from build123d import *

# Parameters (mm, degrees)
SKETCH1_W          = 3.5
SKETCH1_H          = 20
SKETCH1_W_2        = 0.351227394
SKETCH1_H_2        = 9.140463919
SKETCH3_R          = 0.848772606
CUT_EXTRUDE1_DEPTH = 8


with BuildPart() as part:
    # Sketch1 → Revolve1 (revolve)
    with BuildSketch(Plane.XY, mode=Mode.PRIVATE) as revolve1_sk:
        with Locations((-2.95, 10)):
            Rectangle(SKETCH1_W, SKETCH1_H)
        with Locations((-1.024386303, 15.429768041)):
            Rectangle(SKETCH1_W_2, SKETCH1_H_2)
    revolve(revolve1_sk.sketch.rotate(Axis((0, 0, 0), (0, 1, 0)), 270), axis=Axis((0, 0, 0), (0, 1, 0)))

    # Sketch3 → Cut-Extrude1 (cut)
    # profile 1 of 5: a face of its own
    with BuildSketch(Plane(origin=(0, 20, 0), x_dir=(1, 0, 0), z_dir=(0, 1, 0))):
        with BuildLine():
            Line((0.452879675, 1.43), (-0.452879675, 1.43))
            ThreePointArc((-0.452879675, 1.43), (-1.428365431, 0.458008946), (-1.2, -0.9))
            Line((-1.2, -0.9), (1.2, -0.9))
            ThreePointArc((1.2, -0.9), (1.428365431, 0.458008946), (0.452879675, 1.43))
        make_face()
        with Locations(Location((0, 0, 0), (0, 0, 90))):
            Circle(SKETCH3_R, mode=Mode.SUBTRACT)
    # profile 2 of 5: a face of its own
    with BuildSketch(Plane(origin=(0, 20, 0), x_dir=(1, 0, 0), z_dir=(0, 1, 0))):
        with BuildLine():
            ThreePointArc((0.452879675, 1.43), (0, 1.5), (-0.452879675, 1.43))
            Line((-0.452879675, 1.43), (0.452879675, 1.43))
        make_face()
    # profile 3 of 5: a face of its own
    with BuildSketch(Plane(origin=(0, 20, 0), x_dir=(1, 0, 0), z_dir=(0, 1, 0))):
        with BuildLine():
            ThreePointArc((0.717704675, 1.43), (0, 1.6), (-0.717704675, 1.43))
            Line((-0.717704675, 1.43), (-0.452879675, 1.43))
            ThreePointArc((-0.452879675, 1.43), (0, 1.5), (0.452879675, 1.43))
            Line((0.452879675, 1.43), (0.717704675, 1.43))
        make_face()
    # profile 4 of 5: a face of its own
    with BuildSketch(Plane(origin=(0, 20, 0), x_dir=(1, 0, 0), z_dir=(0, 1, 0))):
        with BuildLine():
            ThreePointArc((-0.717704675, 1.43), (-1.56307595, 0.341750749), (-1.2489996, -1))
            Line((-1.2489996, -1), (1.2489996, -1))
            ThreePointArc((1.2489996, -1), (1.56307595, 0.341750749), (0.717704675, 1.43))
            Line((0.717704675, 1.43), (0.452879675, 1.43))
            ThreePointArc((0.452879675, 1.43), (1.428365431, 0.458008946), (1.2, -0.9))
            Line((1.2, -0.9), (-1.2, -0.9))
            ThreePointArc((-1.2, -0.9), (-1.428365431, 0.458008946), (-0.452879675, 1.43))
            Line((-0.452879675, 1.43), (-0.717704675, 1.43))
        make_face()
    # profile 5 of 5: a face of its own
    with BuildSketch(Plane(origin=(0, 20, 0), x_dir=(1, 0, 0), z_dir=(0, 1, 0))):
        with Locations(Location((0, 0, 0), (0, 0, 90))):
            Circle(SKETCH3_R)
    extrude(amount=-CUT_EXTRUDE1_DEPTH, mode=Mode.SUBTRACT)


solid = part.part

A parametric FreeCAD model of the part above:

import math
import FreeCAD as App
import Part
import Sketcher

doc = App.newDocument("Part")
body = doc.addObject("PartDesign::Body", "Body")

# Sketch on XY plane
sketch1 = body.newObject("Sketcher::SketchObject", "Sketch")
sketch1.AttachmentSupport = (doc.getObject("XY_Plane"), [""])
sketch1.MapMode = "FlatFace"
sketch1.addGeometry(Part.LineSegment(App.Vector(-4.7, 20, 0), App.Vector(-4.7, 0, 0)), False)
sketch1.addGeometry(Part.LineSegment(App.Vector(-4.7, 0, 0), App.Vector(-1.2, 0, 0)), False)
sketch1.addGeometry(Part.LineSegment(App.Vector(-1.2, 0, 0), App.Vector(-1.2, 10.86, 0)), False)
sketch1.addGeometry(Part.LineSegment(App.Vector(-1.2, 10.86, 0), App.Vector(-0.85, 10.86, 0)), False)
sketch1.addGeometry(Part.LineSegment(App.Vector(-0.85, 10.86, 0), App.Vector(-0.85, 20, 0)), False)
sketch1.addGeometry(Part.LineSegment(App.Vector(-0.85, 20, 0), App.Vector(-1.2, 20, 0)), False)
sketch1.addGeometry(Part.LineSegment(App.Vector(-1.2, 20, 0), App.Vector(-4.7, 20, 0)), False)
sketch1.addConstraint(Sketcher.Constraint("Coincident", 0, 2, 1, 1))
sketch1.addConstraint(Sketcher.Constraint("Coincident", 1, 2, 2, 1))
sketch1.addConstraint(Sketcher.Constraint("Coincident", 2, 2, 3, 1))
sketch1.addConstraint(Sketcher.Constraint("Coincident", 3, 2, 4, 1))
sketch1.addConstraint(Sketcher.Constraint("Coincident", 4, 2, 5, 1))
sketch1.addConstraint(Sketcher.Constraint("Coincident", 5, 2, 6, 1))
sketch1.addConstraint(Sketcher.Constraint("Coincident", 6, 2, 0, 1))
sketch1.addConstraint(Sketcher.Constraint("Vertical", 0))
sketch1.addConstraint(Sketcher.Constraint("Horizontal", 1))
sketch1.addConstraint(Sketcher.Constraint("Vertical", 2))
sketch1.addConstraint(Sketcher.Constraint("Horizontal", 3))
sketch1.addConstraint(Sketcher.Constraint("Vertical", 4))
sketch1.addConstraint(Sketcher.Constraint("Horizontal", 5))
sketch1.addConstraint(Sketcher.Constraint("Horizontal", 6))
sketch1.addConstraint(Sketcher.Constraint("PointOnObject", 0, 2, -1))
sketch1.addConstraint(Sketcher.Constraint("Vertical", 2, 2, 5, 2))
sketch1.addConstraint(Sketcher.Constraint("DistanceY", 0, 2, 0, 1, 20.0))
sketch1.addConstraint(Sketcher.Constraint("DistanceX", 1, 1, 1, 2, 3.5))
sketch1.addConstraint(Sketcher.Constraint("DistanceX", 0, 2, -1, 1, 4.7))
sketch1.addConstraint(Sketcher.Constraint("DistanceX", 3, 1, 3, 2, 0.351227))
sketch1.addConstraint(Sketcher.Constraint("DistanceY", 2, 1, 2, 2, 10.859536))
revolution = body.newObject("PartDesign::Revolution", "Revolution")
revolution.Profile = sketch1
revolution.ReferenceAxis = (sketch1, ["V_Axis"])
revolution.Angle = 360

# Sketch on XZ plane
sketch2 = body.newObject("Sketcher::SketchObject", "Sketch001")
sketch2.AttachmentSupport = (doc.getObject("XZ_Plane"), [""])
sketch2.MapMode = "FlatFace"
sketch2.AttachmentOffset = App.Placement(App.Vector(0, 0, -20), App.Rotation())
sketch2.addGeometry(Part.ArcOfCircle(Part.Circle(App.Vector(0, 0, 0), App.Vector(0, 0, 1), 1.6), math.radians(141), math.radians(243)), False)
sketch2.addGeometry(Part.LineSegment(App.Vector(-1.2, 1, 0), App.Vector(1.2, 1, 0)), False)
sketch2.addGeometry(Part.ArcOfCircle(Part.Circle(App.Vector(0, 0, 0), App.Vector(0, 0, 1), 1.6), math.radians(-63), math.radians(39)), False)
sketch2.addGeometry(Part.ArcOfCircle(Part.Circle(App.Vector(0, 0, 0), App.Vector(0, 0, 1), 1.6), math.radians(-117), math.radians(-63)), False)
sketch2.addConstraint(Sketcher.Constraint("Coincident", 0, 1, 1, 1))
sketch2.addConstraint(Sketcher.Constraint("Coincident", 1, 2, 2, 2))
sketch2.addConstraint(Sketcher.Constraint("Tangent", 2, 1, 3, 2))
sketch2.addConstraint(Sketcher.Constraint("Tangent", 3, 1, 0, 2))
sketch2.addConstraint(Sketcher.Constraint("Horizontal", 1))
sketch2.addConstraint(Sketcher.Constraint("Coincident", 0, 3, -1, 1))
sketch2.addConstraint(Sketcher.Constraint("Coincident", 2, 3, -1, 1))
sketch2.addConstraint(Sketcher.Constraint("Horizontal", 2, 1, 3, 1))
sketch2.addConstraint(Sketcher.Constraint("Radius", 0, 1.6))
sketch2.addConstraint(Sketcher.Constraint("DistanceY", -1, 1, 0, 1, 1.0))
sketch2.addConstraint(Sketcher.Constraint("DistanceY", 2, 1, -1, 1, 1.43))
pocket1 = body.newObject("PartDesign::Pocket", "Pocket")
pocket1.Profile = sketch2
pocket1.Length = 8
pocket1.Reversed = True

doc.recompute()
